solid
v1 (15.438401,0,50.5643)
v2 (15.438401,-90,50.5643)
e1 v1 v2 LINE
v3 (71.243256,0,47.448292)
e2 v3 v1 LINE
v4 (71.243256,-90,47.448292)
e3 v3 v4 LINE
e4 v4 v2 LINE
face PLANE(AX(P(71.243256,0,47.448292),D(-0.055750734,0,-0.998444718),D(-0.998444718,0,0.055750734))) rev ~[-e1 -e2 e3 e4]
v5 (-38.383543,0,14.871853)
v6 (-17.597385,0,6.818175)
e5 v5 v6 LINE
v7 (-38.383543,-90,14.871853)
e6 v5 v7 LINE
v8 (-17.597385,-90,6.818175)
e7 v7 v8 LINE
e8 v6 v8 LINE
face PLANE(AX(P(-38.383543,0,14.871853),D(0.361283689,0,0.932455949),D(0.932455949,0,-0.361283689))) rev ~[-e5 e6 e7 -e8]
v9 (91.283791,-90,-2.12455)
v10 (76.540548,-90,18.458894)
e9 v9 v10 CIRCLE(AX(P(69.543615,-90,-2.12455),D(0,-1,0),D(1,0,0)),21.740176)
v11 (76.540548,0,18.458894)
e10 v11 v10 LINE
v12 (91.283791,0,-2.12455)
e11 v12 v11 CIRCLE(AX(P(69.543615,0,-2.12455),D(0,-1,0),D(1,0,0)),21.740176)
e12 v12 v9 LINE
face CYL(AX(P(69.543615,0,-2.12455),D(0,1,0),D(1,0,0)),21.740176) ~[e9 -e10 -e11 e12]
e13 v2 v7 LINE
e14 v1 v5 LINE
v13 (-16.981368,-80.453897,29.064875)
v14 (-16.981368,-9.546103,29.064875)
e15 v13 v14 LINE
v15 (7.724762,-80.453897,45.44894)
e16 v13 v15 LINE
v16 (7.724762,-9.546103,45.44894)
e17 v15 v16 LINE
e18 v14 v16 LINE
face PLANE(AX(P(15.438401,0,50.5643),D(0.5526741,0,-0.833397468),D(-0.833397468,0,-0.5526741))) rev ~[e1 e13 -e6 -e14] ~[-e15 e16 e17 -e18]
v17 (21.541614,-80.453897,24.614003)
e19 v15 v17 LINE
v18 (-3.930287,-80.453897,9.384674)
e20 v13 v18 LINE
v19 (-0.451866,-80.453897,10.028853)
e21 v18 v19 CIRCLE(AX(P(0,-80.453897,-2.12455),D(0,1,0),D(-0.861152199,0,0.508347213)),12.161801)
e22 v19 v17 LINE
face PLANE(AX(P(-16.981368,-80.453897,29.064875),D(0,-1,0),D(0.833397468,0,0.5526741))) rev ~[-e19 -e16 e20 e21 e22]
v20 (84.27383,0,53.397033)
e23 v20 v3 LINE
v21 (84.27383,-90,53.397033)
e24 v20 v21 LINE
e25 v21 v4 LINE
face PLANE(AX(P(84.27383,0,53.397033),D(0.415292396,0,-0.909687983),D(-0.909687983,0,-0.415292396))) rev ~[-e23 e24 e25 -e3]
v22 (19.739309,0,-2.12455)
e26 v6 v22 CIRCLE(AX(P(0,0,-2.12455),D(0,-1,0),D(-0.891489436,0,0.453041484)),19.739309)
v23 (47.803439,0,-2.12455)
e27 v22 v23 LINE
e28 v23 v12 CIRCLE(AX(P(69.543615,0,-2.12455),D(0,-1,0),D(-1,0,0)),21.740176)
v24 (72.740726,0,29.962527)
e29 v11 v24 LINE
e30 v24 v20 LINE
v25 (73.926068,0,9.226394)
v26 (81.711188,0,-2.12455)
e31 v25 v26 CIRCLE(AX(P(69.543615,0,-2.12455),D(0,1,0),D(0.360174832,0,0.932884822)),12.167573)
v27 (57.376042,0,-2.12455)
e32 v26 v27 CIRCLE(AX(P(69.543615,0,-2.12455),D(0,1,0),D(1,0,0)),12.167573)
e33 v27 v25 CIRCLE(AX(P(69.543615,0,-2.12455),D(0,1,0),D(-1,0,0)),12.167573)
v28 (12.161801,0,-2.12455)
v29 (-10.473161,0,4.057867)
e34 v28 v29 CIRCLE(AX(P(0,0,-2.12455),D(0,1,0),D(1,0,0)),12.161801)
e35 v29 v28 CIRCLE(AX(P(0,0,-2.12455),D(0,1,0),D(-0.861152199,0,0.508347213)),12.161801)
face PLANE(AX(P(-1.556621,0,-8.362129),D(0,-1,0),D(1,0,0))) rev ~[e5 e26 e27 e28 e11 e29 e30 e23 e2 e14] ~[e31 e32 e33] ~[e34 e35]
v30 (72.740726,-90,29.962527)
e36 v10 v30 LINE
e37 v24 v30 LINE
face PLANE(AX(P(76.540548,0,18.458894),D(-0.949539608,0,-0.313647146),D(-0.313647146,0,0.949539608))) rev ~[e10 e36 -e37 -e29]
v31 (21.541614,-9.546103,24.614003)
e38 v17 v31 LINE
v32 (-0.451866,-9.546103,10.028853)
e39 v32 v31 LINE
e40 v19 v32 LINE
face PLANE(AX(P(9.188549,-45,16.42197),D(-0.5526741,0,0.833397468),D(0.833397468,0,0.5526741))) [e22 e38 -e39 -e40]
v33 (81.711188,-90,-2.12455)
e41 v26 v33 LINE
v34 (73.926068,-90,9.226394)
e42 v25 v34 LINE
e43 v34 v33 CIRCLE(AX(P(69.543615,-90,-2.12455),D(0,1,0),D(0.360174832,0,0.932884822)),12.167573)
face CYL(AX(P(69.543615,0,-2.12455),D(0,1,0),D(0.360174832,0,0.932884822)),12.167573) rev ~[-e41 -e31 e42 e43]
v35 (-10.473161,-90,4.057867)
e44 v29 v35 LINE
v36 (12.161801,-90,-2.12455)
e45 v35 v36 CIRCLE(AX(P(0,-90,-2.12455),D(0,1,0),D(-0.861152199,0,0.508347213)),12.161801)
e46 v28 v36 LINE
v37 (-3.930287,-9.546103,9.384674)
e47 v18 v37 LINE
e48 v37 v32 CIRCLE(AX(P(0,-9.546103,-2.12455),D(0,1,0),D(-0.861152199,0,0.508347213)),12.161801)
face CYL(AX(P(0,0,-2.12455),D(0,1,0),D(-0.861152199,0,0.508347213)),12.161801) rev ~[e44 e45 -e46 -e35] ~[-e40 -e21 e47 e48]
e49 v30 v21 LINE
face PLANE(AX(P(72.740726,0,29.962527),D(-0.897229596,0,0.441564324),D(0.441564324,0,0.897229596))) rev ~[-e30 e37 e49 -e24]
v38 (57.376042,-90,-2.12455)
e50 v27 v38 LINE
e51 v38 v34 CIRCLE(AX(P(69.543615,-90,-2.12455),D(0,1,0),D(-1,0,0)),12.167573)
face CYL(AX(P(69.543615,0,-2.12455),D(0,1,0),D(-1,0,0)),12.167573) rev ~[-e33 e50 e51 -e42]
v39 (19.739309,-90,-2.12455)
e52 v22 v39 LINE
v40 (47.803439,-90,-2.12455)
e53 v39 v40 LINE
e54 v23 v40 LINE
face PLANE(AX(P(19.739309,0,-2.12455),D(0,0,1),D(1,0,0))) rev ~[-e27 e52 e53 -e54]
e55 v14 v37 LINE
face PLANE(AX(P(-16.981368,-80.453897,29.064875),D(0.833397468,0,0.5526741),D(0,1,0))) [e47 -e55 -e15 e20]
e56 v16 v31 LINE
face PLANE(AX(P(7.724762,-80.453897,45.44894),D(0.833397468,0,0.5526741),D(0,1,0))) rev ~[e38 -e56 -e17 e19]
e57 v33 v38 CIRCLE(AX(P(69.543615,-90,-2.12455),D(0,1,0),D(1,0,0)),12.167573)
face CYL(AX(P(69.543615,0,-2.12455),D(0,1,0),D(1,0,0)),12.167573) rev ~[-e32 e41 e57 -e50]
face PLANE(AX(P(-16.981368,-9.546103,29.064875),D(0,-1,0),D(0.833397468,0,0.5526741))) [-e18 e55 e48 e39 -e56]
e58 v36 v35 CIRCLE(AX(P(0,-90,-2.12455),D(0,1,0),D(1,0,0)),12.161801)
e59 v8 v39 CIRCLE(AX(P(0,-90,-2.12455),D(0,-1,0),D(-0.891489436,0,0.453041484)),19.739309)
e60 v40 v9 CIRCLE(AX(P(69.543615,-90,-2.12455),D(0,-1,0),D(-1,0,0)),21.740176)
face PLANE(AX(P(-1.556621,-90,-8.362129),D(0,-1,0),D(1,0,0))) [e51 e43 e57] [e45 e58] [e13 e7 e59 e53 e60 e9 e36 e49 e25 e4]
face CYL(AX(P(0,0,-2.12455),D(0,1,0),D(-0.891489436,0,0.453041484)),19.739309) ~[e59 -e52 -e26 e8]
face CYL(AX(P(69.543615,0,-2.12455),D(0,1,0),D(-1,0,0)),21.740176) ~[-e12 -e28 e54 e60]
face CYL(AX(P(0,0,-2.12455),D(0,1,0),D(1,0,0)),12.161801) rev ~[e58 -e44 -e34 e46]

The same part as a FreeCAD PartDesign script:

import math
import FreeCAD as App
import Part
import Sketcher
Q = App.Units.Quantity

doc = App.newDocument("Part")
body = doc.addObject("PartDesign::Body", "Body")

sketch1 = body.newObject("Sketcher::SketchObject", "Sketch")
sketch1.AttachmentSupport = (doc.getObject("XZ_Plane"), [""])
sketch1.MapMode = "FlatFace"
sketch1.addGeometry([
    Part.ArcOfCircle(Part.Circle(App.Vector(0, -2, 0), App.Vector(0, 0, 1), 20), math.radians(153), math.radians(360)),
    Part.LineSegment(App.Vector(20, -2, 0), App.Vector(48, -2, 0)),
    Part.ArcOfCircle(Part.Circle(App.Vector(70, -2, 0), App.Vector(0, 0, 1), 22), math.radians(180), math.radians(360)),
    Part.ArcOfCircle(Part.Circle(App.Vector(70, -2, 0), App.Vector(0, 0, 1), 22), math.radians(0), math.radians(71)),
    Part.LineSegment(App.Vector(77, 18, 0), App.Vector(73, 30, 0)),
    Part.LineSegment(App.Vector(73, 30, 0), App.Vector(84, 53, 0)),
    Part.LineSegment(App.Vector(84, 53, 0), App.Vector(71, 47, 0)),
    Part.LineSegment(App.Vector(71, 47, 0), App.Vector(15, 51, 0)),
    Part.LineSegment(App.Vector(15, 51, 0), App.Vector(-38, 15, 0)),
    Part.LineSegment(App.Vector(-38, 15, 0), App.Vector(-18, 7, 0)),
    Part.ArcOfCircle(Part.Circle(App.Vector(0, -2, 0), App.Vector(0, 0, 1), 12), math.radians(149), math.radians(360)),
    Part.ArcOfCircle(Part.Circle(App.Vector(0, -2, 0), App.Vector(0, 0, 1), 12), math.radians(0), math.radians(149)),
    Part.ArcOfCircle(Part.Circle(App.Vector(70, -2, 0), App.Vector(0, 0, 1), 12), math.radians(69), math.radians(180)),
    Part.ArcOfCircle(Part.Circle(App.Vector(70, -2, 0), App.Vector(0, 0, 1), 12), math.radians(0), math.radians(69)),
    Part.ArcOfCircle(Part.Circle(App.Vector(70, -2, 0), App.Vector(0, 0, 1), 12), math.radians(180), math.radians(360)),
], False)
sketch1.addConstraint([
    Sketcher.Constraint("Coincident", 0, 2, 1, 1),
    Sketcher.Constraint("Coincident", 1, 2, 2, 1),
    Sketcher.Constraint("Tangent", 2, 2, 3, 1),
    Sketcher.Constraint("Coincident", 3, 2, 4, 1),
    Sketcher.Constraint("Coincident", 4, 2, 5, 1),
    Sketcher.Constraint("Coincident", 5, 2, 6, 1),
    Sketcher.Constraint("Coincident", 6, 2, 7, 1),
    Sketcher.Constraint("Coincident", 7, 2, 8, 1),
    Sketcher.Constraint("Coincident", 8, 2, 9, 1),
    Sketcher.Constraint("Coincident", 9, 2, 0, 1),
    Sketcher.Constraint("Tangent", 10, 1, 11, 2),
    Sketcher.Constraint("Coincident", 11, 1, 10, 2),
    Sketcher.Constraint("Tangent", 12, 1, 13, 2),
    Sketcher.Constraint("Tangent", 13, 1, 14, 2),
    Sketcher.Constraint("Tangent", 14, 1, 12, 2),
    Sketcher.Constraint("Horizontal", 1),
    Sketcher.Constraint("Coincident", 10, 3, 0, 3),
    Sketcher.Constraint("Coincident", 12, 3, 2, 3),
    Sketcher.Constraint("Equal", 2, 3),
    Sketcher.Constraint("PointOnObject", 0, 3, -2),
    Sketcher.Constraint("Horizontal", 0, 3, 2, 3),
    Sketcher.Constraint("Horizontal", 14, 3, 0, 2),
    Sketcher.Constraint("Horizontal", 1, 2, 2, 2),
    Sketcher.Constraint("Horizontal", 2, 2, 11, 1),
    Sketcher.Constraint("Horizontal", 11, 1, 13, 1),
    Sketcher.Constraint("Horizontal", 13, 1, 14, 1),
    Sketcher.Constraint("Radius", 10, Q("12.161801 mm")),
    Sketcher.Constraint("Radius", 0, Q("19.739309 mm")),
    Sketcher.Constraint("Radius", 2, Q("21.740176 mm")),
    Sketcher.Constraint("Radius", 12, Q("12.167573 mm")),
    Sketcher.Constraint("DistanceX", 1, 1, 1, 2, Q("28.06413 mm")),
    Sketcher.Constraint("DistanceX", -1, 1, 7, 2, Q("15.438401 mm")),
    Sketcher.Constraint("DistanceY", -1, 1, 7, 2, Q("50.5643 mm")),
    Sketcher.Constraint("DistanceY", 3, 2, 6, 2, Q("28.989398 mm")),
    Sketcher.Constraint("DistanceY", 12, 1, 3, 2, Q("9.2325 mm")),
    Sketcher.Constraint("Distance", 4, Q("12.114958 mm")),
    Sketcher.Constraint("Distance", 5, Q("26.11874 mm")),
    Sketcher.Constraint("Distance", 9, Q("22.291839 mm")),
    Sketcher.Constraint("DistanceY", 0, 3, -1, 1, Q("2.12455 mm")),
    Sketcher.Constraint("DistanceX", -1, 1, 3, 2, Q("76.540548 mm")),
    Sketcher.Constraint("DistanceX", -1, 1, 5, 2, Q("84.27383 mm")),
    Sketcher.Constraint("DistanceX", 10, 1, -1, 1, Q("10.473161 mm")),
    Sketcher.Constraint("DistanceX", 2, 3, 4, 2, Q("3.197111 mm")),
    Sketcher.Constraint("DistanceX", 6, 2, 4, 2, Q("1.49747 mm")),
    Sketcher.Constraint("DistanceX", 8, 2, 9, 2, Q("20.786158 mm")),
    Sketcher.Constraint("DistanceY", 10, 1, 9, 2, Q("2.760308 mm")),
])
pad1 = body.newObject("PartDesign::Pad", "Pad")
pad1.Profile = sketch1
pad1.Length = 90

sketch2 = body.newObject("Sketcher::SketchObject", "Sketch001")
sketch2.Placement = App.Placement(App.Vector(-18.574136, 0, 28.008618), App.Rotation(App.Vector(0.833397468, 0, 0.5526741), App.Vector(0, 1, 0), App.Vector(-0.5526741, 0, 0.833397468), "ZXY"))
sketch2.addGeometry([
    Part.LineSegment(App.Vector(2, -10, 0), App.Vector(2, -80, 0)),
    Part.LineSegment(App.Vector(2, -80, 0), App.Vector(32, -80, 0)),
    Part.LineSegment(App.Vector(32, -80, 0), App.Vector(32, -10, 0)),
    Part.LineSegment(App.Vector(32, -10, 0), App.Vector(2, -10, 0)),
], False)
sketch2.addConstraint([
    Sketcher.Constraint("Coincident", 0, 2, 1, 1),
    Sketcher.Constraint("Coincident", 1, 2, 2, 1),
    Sketcher.Constraint("Coincident", 2, 2, 3, 1),
    Sketcher.Constraint("Coincident", 3, 2, 0, 1),
    Sketcher.Constraint("Vertical", 0),
    Sketcher.Constraint("Horizontal", 1),
    Sketcher.Constraint("Vertical", 2),
    Sketcher.Constraint("Horizontal", 3),
    Sketcher.Constraint("DistanceX", 1, 1, 1, 2, Q("29.645074 mm")),
    Sketcher.Constraint("DistanceY", 0, 2, 0, 1, Q("70.907794 mm")),
    Sketcher.Constraint("DistanceX", -1, 1, 1, 2, Q("31.556249 mm")),
    Sketcher.Constraint("DistanceY", 0, 2, -1, 1, Q("80.453897 mm")),
])
pocket1 = body.newObject("PartDesign::Pocket", "Pocket")
pocket1.Profile = sketch2
pocket1.Length = 25

doc.recompute()
